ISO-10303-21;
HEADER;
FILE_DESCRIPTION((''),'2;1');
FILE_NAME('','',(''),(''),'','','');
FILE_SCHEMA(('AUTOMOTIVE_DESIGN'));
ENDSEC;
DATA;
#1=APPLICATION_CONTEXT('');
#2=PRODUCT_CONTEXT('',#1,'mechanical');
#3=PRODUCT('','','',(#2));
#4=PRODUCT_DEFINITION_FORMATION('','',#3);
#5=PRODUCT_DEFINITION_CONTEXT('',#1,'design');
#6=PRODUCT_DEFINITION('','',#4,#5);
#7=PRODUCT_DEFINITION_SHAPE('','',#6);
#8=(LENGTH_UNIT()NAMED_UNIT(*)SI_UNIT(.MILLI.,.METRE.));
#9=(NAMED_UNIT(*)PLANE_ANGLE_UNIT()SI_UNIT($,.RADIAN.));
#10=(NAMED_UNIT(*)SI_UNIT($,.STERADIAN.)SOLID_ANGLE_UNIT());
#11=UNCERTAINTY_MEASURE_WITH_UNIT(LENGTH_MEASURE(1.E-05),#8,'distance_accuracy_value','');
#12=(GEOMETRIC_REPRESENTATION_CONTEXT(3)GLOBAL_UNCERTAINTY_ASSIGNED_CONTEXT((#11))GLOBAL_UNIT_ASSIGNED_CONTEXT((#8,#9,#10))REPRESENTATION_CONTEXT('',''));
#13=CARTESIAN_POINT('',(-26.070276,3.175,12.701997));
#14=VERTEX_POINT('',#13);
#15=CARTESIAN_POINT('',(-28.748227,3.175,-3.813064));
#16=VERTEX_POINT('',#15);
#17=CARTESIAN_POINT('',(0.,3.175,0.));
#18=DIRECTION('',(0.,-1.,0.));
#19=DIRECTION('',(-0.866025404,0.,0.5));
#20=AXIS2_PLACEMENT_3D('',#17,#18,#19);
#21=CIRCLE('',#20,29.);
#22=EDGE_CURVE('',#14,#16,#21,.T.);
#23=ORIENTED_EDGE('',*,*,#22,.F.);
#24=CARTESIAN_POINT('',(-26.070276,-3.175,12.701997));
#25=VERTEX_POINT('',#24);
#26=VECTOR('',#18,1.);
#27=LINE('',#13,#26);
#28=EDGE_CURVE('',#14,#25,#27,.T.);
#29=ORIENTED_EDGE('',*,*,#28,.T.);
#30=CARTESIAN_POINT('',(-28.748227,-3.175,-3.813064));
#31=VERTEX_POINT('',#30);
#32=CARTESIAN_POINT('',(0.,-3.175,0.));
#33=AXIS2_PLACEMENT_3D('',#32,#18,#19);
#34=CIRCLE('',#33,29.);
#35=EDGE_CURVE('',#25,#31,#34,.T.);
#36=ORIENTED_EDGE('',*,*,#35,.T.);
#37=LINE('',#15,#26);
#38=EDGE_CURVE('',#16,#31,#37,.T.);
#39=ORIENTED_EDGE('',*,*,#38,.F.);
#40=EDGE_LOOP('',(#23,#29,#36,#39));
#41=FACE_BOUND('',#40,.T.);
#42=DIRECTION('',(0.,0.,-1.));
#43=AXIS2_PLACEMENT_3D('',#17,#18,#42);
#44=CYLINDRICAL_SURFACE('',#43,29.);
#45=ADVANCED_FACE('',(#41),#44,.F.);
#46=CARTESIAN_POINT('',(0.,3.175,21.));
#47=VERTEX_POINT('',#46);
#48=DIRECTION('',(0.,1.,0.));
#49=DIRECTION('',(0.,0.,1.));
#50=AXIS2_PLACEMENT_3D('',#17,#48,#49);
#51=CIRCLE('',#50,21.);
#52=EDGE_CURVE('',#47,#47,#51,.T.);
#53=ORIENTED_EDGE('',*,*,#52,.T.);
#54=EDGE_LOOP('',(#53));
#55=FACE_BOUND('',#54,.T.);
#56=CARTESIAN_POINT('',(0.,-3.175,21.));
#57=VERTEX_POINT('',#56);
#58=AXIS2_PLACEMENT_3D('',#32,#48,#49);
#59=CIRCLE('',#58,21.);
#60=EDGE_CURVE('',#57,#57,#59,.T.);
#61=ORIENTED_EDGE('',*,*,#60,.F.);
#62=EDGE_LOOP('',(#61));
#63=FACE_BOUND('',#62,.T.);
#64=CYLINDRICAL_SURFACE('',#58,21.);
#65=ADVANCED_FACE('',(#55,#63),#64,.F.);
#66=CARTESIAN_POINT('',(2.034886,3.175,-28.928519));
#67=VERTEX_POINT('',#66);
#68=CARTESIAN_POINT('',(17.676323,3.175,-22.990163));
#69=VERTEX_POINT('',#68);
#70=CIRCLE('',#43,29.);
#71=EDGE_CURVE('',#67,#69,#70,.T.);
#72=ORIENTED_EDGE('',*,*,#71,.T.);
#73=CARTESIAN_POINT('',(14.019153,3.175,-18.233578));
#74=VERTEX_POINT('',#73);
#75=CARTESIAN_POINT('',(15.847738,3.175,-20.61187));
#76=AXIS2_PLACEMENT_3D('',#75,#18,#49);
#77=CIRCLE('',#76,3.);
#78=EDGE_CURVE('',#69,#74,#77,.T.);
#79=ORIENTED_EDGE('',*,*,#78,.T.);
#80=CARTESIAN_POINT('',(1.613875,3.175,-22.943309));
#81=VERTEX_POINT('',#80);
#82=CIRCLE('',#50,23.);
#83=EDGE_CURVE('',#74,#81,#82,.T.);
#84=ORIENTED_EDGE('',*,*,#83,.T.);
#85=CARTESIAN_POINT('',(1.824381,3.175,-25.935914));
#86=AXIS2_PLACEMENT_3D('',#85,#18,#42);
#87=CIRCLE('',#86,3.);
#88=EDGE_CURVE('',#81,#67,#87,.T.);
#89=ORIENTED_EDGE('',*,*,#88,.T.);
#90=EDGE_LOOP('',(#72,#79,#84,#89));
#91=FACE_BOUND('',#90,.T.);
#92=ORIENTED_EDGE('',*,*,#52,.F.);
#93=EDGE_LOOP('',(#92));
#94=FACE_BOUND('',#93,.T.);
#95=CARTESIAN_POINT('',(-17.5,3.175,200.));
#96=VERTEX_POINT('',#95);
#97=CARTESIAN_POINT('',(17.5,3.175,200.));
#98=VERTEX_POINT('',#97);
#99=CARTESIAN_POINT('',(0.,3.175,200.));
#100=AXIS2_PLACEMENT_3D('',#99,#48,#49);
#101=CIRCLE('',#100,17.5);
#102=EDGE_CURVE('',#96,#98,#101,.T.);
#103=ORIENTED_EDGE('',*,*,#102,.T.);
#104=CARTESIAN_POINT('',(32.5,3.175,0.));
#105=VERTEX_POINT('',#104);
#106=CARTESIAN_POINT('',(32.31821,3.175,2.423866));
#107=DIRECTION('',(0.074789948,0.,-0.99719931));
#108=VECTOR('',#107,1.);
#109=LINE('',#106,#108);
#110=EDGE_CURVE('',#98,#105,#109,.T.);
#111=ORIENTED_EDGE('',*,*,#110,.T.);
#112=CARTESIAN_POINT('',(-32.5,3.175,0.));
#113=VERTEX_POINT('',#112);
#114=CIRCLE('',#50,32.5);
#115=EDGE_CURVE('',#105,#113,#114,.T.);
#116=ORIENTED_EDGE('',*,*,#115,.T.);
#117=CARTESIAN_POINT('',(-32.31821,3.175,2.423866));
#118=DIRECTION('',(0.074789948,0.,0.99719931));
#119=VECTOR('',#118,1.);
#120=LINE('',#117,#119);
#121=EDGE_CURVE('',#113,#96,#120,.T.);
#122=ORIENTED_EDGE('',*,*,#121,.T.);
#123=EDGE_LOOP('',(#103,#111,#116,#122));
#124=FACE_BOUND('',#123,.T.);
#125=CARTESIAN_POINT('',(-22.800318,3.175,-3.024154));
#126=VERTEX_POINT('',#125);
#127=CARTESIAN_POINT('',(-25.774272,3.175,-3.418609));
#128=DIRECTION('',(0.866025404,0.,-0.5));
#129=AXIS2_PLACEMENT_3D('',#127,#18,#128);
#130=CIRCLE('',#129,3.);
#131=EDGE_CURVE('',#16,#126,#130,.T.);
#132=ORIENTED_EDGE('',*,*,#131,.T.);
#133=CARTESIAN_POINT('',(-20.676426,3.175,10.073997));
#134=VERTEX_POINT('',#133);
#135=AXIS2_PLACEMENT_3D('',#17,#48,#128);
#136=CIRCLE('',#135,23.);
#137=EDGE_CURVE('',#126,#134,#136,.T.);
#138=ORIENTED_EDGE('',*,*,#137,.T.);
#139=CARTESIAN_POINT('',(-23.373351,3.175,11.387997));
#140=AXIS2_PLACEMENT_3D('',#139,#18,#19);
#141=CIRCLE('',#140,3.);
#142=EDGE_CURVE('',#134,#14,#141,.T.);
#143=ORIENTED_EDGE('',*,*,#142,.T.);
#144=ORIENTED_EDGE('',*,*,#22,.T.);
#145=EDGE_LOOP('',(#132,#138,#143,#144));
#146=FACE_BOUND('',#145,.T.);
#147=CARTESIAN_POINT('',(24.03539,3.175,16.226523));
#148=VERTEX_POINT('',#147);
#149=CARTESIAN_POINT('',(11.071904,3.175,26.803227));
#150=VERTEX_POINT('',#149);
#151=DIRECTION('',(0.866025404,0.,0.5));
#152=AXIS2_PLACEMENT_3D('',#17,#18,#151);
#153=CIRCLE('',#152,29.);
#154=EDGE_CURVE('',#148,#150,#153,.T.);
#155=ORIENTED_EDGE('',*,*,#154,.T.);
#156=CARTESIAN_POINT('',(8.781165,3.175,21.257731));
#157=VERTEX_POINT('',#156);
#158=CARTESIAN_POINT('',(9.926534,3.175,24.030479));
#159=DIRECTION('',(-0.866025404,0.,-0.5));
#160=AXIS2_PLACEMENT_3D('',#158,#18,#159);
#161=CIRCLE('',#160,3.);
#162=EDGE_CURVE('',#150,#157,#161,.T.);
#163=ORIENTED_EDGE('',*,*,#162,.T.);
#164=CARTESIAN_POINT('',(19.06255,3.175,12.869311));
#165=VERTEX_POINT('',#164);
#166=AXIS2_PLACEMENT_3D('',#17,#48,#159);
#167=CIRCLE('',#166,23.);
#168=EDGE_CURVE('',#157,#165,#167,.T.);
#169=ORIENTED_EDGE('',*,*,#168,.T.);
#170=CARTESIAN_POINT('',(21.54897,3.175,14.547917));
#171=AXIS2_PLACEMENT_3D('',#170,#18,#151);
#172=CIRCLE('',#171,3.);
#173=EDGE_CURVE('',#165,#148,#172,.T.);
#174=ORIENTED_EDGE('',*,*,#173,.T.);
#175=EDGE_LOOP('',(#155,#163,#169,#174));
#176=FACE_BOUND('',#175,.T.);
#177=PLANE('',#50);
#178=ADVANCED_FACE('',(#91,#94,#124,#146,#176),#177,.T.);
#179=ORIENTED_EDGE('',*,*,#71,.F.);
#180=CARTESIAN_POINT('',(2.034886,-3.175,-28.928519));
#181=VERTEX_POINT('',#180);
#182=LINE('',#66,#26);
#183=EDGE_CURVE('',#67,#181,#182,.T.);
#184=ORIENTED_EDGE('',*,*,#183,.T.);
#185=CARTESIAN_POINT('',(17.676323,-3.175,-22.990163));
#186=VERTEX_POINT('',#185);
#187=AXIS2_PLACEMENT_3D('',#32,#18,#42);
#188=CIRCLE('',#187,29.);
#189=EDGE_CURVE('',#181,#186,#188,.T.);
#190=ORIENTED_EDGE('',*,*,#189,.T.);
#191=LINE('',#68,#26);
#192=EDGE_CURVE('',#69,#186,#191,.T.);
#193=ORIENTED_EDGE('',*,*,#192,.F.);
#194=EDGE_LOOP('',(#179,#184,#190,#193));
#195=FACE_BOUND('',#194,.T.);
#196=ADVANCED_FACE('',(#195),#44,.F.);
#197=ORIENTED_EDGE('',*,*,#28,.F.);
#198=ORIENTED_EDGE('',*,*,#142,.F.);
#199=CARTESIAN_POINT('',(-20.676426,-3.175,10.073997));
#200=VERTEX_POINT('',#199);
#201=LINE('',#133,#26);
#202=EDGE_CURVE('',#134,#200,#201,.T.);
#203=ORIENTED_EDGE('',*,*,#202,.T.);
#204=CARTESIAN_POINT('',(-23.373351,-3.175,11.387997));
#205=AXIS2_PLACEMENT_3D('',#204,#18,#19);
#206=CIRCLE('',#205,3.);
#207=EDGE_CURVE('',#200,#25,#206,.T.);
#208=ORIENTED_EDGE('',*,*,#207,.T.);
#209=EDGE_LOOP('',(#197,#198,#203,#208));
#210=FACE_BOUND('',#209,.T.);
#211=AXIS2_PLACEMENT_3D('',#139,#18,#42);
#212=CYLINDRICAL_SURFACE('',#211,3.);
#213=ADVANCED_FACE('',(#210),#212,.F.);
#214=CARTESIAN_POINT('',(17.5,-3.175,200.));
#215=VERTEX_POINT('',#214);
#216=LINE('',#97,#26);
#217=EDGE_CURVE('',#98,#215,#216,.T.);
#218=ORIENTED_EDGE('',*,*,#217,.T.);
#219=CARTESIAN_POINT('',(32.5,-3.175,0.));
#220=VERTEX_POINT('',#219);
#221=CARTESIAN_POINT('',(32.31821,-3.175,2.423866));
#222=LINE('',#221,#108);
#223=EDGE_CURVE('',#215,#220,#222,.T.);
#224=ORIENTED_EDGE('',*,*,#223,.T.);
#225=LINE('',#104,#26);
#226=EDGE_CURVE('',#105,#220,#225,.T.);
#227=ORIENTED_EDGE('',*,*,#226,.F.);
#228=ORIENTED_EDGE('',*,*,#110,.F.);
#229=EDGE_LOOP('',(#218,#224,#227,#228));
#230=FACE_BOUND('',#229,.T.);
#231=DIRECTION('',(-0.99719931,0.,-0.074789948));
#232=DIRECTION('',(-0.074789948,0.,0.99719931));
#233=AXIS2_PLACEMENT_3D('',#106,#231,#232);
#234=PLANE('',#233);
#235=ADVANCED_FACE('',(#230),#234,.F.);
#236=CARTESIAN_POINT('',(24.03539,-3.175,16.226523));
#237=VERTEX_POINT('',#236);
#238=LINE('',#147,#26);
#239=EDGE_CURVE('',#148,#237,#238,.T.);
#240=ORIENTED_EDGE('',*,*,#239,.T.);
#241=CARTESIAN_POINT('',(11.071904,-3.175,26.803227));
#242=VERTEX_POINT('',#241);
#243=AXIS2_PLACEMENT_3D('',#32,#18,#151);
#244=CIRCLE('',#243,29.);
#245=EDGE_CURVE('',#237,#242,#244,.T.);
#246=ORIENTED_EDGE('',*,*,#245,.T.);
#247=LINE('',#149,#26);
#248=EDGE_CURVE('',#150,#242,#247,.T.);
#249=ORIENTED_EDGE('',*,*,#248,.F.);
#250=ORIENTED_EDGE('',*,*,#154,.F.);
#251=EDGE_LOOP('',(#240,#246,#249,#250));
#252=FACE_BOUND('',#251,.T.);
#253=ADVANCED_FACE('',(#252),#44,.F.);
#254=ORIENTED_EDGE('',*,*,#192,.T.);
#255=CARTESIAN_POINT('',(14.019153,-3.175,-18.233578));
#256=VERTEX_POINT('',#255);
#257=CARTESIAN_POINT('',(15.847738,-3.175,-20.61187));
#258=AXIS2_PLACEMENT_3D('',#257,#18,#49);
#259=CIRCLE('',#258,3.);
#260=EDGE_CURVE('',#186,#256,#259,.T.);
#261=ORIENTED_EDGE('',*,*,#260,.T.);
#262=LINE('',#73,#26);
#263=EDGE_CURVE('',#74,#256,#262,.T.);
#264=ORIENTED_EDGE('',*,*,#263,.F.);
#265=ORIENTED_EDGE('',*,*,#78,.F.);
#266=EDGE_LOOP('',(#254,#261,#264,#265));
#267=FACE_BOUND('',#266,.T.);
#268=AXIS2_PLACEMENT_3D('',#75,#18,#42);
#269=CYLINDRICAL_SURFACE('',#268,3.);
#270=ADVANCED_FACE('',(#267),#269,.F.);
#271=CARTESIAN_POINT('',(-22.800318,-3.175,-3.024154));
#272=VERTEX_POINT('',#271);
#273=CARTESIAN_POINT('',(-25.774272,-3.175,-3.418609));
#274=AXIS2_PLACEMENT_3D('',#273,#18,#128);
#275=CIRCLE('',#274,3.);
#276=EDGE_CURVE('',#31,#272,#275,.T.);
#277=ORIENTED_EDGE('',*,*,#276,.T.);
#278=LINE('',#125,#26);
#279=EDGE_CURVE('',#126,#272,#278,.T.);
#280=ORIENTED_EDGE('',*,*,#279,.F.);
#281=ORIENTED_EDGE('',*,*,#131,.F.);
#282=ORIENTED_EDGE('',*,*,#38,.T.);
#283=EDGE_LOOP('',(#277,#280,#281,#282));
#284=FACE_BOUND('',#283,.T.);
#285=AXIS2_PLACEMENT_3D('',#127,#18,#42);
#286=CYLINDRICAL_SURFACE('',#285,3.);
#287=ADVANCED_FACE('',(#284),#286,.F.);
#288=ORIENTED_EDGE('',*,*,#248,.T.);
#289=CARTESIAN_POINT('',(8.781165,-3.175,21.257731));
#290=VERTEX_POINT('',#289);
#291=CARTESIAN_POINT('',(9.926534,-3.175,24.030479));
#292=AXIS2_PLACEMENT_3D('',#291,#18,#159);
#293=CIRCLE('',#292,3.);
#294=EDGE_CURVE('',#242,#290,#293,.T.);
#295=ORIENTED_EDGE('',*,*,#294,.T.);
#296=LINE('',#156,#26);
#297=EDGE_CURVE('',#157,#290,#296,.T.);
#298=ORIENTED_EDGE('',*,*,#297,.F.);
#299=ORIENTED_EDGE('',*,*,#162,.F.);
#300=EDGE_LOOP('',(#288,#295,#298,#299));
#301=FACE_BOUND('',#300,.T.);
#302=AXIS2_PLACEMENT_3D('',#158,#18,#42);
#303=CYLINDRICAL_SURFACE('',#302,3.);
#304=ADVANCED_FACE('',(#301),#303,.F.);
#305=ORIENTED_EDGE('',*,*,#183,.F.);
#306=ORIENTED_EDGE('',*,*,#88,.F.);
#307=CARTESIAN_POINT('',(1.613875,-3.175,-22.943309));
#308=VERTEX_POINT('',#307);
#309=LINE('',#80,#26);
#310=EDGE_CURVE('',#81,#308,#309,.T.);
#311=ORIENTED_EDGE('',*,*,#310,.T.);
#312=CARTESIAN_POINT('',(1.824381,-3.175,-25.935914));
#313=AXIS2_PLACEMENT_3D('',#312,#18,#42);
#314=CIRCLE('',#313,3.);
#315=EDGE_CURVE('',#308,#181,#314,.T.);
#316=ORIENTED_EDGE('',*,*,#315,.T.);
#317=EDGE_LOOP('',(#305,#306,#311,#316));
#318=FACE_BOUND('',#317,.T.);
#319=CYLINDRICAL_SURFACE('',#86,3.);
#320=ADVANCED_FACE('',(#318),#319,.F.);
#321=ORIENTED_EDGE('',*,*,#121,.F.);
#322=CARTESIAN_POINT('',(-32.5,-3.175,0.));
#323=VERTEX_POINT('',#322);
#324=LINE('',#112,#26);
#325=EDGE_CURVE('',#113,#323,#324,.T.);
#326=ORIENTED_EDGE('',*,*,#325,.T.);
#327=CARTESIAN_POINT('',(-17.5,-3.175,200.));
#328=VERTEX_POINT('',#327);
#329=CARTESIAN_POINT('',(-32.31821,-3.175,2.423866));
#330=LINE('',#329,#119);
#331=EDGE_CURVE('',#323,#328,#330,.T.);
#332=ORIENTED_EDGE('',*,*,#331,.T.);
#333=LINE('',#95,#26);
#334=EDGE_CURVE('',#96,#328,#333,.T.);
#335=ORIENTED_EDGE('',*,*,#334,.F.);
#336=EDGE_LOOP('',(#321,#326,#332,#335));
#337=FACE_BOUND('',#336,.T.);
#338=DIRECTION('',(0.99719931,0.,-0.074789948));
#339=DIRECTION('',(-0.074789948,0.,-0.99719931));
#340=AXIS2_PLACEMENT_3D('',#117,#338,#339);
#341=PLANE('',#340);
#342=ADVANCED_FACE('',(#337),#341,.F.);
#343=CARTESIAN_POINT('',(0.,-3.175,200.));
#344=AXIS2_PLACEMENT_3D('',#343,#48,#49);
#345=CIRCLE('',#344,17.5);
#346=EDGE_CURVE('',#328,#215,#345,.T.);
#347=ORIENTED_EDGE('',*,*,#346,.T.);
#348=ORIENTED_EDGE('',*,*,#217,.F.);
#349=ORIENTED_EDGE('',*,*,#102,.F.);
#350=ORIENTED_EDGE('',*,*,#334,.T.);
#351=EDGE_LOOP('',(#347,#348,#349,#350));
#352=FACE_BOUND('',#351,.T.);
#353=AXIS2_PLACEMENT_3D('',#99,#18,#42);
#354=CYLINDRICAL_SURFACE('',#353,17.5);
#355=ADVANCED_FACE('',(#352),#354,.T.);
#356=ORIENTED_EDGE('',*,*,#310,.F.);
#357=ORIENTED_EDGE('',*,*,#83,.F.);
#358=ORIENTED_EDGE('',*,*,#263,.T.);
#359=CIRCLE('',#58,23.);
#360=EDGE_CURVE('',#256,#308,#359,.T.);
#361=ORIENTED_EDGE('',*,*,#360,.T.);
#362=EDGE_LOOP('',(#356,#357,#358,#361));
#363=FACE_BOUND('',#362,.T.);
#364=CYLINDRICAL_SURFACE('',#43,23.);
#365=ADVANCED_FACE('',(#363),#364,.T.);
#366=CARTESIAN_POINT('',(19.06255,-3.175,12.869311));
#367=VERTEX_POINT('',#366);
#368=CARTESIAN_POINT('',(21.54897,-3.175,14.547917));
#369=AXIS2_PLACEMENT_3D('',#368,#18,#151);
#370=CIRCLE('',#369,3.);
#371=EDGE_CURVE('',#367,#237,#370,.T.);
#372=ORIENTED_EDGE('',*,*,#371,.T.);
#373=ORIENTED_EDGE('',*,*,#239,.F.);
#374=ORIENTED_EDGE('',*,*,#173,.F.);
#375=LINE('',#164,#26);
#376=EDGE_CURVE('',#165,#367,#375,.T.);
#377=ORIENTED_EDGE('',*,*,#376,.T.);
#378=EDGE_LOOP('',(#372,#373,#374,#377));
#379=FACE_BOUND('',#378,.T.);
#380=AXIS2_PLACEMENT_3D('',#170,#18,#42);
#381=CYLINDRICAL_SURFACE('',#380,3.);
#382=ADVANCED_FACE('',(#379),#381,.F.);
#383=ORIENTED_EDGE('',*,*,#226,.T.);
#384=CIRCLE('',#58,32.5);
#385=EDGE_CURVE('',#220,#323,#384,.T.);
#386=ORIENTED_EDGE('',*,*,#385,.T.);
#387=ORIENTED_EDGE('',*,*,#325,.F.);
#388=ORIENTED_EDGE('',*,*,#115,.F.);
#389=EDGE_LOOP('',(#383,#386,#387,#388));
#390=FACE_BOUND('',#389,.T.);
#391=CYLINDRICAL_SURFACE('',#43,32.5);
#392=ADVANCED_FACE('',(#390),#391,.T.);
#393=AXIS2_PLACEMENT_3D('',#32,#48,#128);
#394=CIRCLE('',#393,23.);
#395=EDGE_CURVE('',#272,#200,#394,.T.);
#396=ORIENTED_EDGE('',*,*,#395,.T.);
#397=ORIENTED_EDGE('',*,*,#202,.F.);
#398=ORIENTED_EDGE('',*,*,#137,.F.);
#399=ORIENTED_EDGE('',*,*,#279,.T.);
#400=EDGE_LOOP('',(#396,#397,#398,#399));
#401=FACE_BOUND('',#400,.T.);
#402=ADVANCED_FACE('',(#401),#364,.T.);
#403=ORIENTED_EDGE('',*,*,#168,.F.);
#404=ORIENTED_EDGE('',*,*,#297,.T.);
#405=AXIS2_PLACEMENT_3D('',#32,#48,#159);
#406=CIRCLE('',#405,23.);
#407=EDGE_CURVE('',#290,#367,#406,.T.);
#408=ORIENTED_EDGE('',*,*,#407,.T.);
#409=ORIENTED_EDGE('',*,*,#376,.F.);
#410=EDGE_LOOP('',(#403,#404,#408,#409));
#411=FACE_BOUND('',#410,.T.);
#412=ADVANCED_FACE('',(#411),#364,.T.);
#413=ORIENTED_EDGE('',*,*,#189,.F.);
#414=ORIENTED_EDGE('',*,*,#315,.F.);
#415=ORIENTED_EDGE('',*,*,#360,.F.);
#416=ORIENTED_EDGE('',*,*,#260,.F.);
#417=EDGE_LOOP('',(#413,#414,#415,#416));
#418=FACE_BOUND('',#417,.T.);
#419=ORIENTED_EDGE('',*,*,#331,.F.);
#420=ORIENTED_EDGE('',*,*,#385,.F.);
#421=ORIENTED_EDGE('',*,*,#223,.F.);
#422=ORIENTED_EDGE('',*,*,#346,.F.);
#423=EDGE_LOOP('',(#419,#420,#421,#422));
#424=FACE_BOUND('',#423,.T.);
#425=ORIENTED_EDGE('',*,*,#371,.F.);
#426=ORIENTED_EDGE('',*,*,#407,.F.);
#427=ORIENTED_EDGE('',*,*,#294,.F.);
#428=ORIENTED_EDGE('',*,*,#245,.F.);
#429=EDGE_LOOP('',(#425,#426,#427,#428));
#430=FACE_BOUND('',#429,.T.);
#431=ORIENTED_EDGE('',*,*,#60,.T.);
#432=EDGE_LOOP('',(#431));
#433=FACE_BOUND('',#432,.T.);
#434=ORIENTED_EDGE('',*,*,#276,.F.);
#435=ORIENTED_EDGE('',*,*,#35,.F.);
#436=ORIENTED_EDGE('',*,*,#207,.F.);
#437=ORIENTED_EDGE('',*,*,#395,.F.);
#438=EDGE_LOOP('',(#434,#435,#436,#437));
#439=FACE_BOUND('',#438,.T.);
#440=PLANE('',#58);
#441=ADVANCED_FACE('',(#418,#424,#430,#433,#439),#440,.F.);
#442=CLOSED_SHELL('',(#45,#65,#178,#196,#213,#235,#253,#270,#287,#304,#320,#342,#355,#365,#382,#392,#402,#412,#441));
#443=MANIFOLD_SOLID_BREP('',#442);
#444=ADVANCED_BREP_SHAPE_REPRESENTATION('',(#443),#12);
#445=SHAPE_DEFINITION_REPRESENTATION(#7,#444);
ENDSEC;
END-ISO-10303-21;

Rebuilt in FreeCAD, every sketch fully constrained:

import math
import FreeCAD as App
import Part
import Sketcher
from FreeCAD import Vector

doc = App.newDocument("Part")
body = doc.addObject("PartDesign::Body", "Body")

sketch1 = doc.addObject("Sketcher::SketchObject", "Sketch")
body.addObject(sketch1)
sketch1.AttachmentSupport = (doc.XZ_Plane, [""])
sketch1.MapMode = "FlatFace"
sketch1.addGeometry([
    Part.ArcOfCircle(Part.Circle(Vector(0, 0, 0), Vector(0, 0, 1), 32.5), math.radians(180), math.radians(360)),
    Part.LineSegment(Vector(-32.5, 0, 0), Vector(-32.1, 4.8, 0)),
    Part.LineSegment(Vector(-32.1, 4.8, 0), Vector(-17.5, 200, 0)),
    Part.ArcOfCircle(Part.Circle(Vector(0, 200, 0), Vector(0, 0, 1), 17.5), math.radians(0), math.radians(180)),
    Part.LineSegment(Vector(17.5, 200, 0), Vector(32.1, 4.8, 0)),
    Part.LineSegment(Vector(32.1, 4.8, 0), Vector(32.5, 0, 0)),
], False)
sketch1.addConstraint([
    Sketcher.Constraint("Coincident", 0, 1, 1, 1),
    Sketcher.Constraint("Coincident", 1, 2, 2, 1),
    Sketcher.Constraint("Coincident", 2, 2, 3, 2),
    Sketcher.Constraint("Coincident", 3, 1, 4, 1),
    Sketcher.Constraint("Coincident", 4, 2, 5, 1),
    Sketcher.Constraint("Coincident", 5, 2, 0, 2),
    Sketcher.Constraint("Coincident", 0, 3, -1, 1),
    Sketcher.Constraint("Symmetric", 2, 2, 3, 1, -2),
    Sketcher.Constraint("Symmetric", 1, 2, 4, 2, -2),
    Sketcher.Constraint("PointOnObject", 0, 1, -1),
    Sketcher.Constraint("PointOnObject", 5, 2, -1),
    Sketcher.Constraint("Parallel", 1, 2),
    Sketcher.Constraint("Horizontal", 3, 3, 2, 2),
    Sketcher.Constraint("Radius", 0, 32.5),
    Sketcher.Constraint("Radius", 3, 17.5),
    Sketcher.Constraint("DistanceY", -1, 1, 3, 3, 200.0),
    Sketcher.Constraint("DistanceX", 1, 2, -1, 1, 32.13642),
])
pad1 = doc.addObject("PartDesign::Pad", "Pad")
body.addObject(pad1)
pad1.Profile = sketch1
pad1.Length = 6.35
pad1.Midplane = True

sketch2 = doc.addObject("Sketcher::SketchObject", "Sketch001")
body.addObject(sketch2)
sketch2.AttachmentSupport = (doc.XZ_Plane, [""])
sketch2.MapMode = "FlatFace"
sketch2.AttachmentOffset = App.Placement(Vector(0, 0, -3.175), App.Rotation())
sketch2.addGeometry(Part.Circle(Vector(0, 0, 0), Vector(0, 0, 1), 21), False)
sketch2.addConstraint([
    Sketcher.Constraint("Coincident", 0, 3, -1, 1),
    Sketcher.Constraint("Diameter", 0, 42.0),
])
pocket1 = doc.addObject("PartDesign::Pocket", "Pocket")
body.addObject(pocket1)
pocket1.Profile = sketch2
pocket1.Type = "ThroughAll"
pocket1.Reversed = True

sketch3 = doc.addObject("Sketcher::SketchObject", "Sketch002")
body.addObject(sketch3)
sketch3.AttachmentSupport = (doc.XZ_Plane, [""])
sketch3.MapMode = "FlatFace"
sketch3.AttachmentOffset = App.Placement(Vector(0, 0, 3.175), App.Rotation())
sketch3.addGeometry([
    Part.ArcOfCircle(Part.Circle(Vector(0, 0, 0), Vector(0, 0, 1), 23), math.radians(-86), math.radians(-52)),
    Part.ArcOfCircle(Part.Circle(Vector(1.8, -25.9, 0), Vector(0, 0, 1), 3), math.radians(94), math.radians(274)),
    Part.ArcOfCircle(Part.Circle(Vector(0, 0, 0), Vector(0, 0, 1), 29), math.radians(-86), math.radians(-52)),
    Part.ArcOfCircle(Part.Circle(Vector(15.8, -20.6, 0), Vector(0, 0, 1), 3), math.radians(-52), math.radians(128)),
], False)
sketch3.addConstraint([
    Sketcher.Constraint("Tangent", 0, 1, 1, 1),
    Sketcher.Constraint("Tangent", 1, 2, 2, 1),
    Sketcher.Constraint("Tangent", 2, 2, 3, 1),
    Sketcher.Constraint("Tangent", 3, 2, 0, 2),
    Sketcher.Constraint("Coincident", 0, 3, -1, 1),
    Sketcher.Constraint("Coincident", 2, 3, -1, 1),
    Sketcher.Constraint("Radius", 0, 23.0),
    Sketcher.Constraint("Radius", 1, 3.0),
    Sketcher.Constraint("DistanceX", -1, 1, 1, 3, 1.824381),
    Sketcher.Constraint("DistanceX", -1, 1, 3, 3, 15.847738),
])
pocket2 = doc.addObject("PartDesign::Pocket", "Pocket001")
body.addObject(pocket2)
pocket2.Profile = sketch3
pocket2.Type = "ThroughAll"
doc.recompute()

polarpattern = doc.addObject("PartDesign::PolarPattern", "PolarPattern")
body.addObject(polarpattern)
polarpattern.Originals = [pocket2]
polarpattern.Axis = (doc.Y_Axis, [""])
polarpattern.Angle = 360
polarpattern.Occurrences = 3
body.Tip = polarpattern

doc.recompute()
